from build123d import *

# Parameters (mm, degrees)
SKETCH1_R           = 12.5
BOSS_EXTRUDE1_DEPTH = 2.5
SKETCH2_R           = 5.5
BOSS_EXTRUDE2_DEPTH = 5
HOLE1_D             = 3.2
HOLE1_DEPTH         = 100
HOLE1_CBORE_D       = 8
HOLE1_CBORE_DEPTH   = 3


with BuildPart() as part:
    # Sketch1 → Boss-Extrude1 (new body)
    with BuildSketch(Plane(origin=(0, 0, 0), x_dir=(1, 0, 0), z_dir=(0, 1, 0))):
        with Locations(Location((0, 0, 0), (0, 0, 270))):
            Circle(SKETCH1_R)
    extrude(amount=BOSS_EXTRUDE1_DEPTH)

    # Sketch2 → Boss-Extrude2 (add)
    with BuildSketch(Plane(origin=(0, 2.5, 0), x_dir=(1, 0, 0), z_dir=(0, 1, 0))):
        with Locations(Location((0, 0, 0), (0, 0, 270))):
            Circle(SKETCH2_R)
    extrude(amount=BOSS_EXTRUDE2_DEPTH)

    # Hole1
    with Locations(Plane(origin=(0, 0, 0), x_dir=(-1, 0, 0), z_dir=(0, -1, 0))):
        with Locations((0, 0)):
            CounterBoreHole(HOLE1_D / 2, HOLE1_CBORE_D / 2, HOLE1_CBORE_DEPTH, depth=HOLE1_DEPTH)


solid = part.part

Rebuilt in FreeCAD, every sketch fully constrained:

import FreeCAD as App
import Part
import Sketcher

V = App.Vector

doc = App.newDocument("Part")
params = doc.addObject("Spreadsheet::Sheet", "Params")
for row, (alias, value) in enumerate([
    ("sketch1_diameter", "25 mm"),
    ("pad1_length", "2.5 mm"),
    ("sketch2_diameter", "11 mm"),
    ("pad2_length", "5 mm"),
    ("sketch3_diameter", "3.2 mm"),
    ("hole_diameter", "3.2 mm"),
    ("hole_depth", "100 mm"),
    ("hole_cbore_diameter", "8 mm"),
    ("hole_cbore_depth", "3 mm"),
], start=1):
    params.set(f"A{row}", alias)
    params.set(f"B{row}", "=" + value)
    params.setAlias(f"B{row}", alias)

body = doc.addObject("PartDesign::Body", "Body")

# Sketch on XZ plane
sketch1 = body.newObject("Sketcher::SketchObject", "Sketch")
sketch1.AttachmentSupport = (doc.getObject("XZ_Plane"), [""])
sketch1.MapMode = "FlatFace"
sketch1.addGeometry(Part.Circle(V(0, 0, 0), V(0, 0, 1), 12.5), False)
sketch1.addConstraint(Sketcher.Constraint("Coincident", 0, 3, -1, 1))
sketch1.addConstraint(Sketcher.Constraint("Diameter", 0, 25.0))
sketch1.setExpression("Constraints[1]", "Params.sketch1_diameter")
pad1 = body.newObject("PartDesign::Pad", "Pad")
pad1.Profile = sketch1
pad1.setExpression("Length", "Params.pad1_length")
pad1.Reversed = True

# Sketch on XZ plane
sketch2 = body.newObject("Sketcher::SketchObject", "Sketch001")
sketch2.AttachmentSupport = (doc.getObject("XZ_Plane"), [""])
sketch2.MapMode = "FlatFace"
sketch2.AttachmentOffset = App.Placement(V(0, 0, -2.5), App.Rotation())
sketch2.addGeometry(Part.Circle(V(0, 0, 0), V(0, 0, 1), 5.5), False)
sketch2.addConstraint(Sketcher.Constraint("Coincident", 0, 3, -1, 1))
sketch2.addConstraint(Sketcher.Constraint("Diameter", 0, 11.0))
sketch2.setExpression("Constraints[1]", "Params.sketch2_diameter")
pad2 = body.newObject("PartDesign::Pad", "Pad001")
pad2.Profile = sketch2
pad2.setExpression("Length", "Params.pad2_length")
pad2.Reversed = True

# Sketch on XZ plane
sketch3 = body.newObject("Sketcher::SketchObject", "Sketch002")
sketch3.AttachmentSupport = (doc.getObject("XZ_Plane"), [""])
sketch3.MapMode = "FlatFace"
sketch3.addGeometry(Part.Circle(V(0, 0, 0), V(0, 0, 1), 1.6), False)
sketch3.addConstraint(Sketcher.Constraint("Coincident", 0, 3, -1, 1))
sketch3.addConstraint(Sketcher.Constraint("Diameter", 0, 3.2))
sketch3.setExpression("Constraints[1]", "Params.sketch3_diameter")
doc.recompute()
hole = body.newObject("PartDesign::Hole", "Hole")
hole.Profile = sketch3
hole.ThreadType = "None"
hole.setExpression("Diameter", "Params.hole_diameter")
hole.DepthType = "Dimension"
hole.setExpression("Depth", "Params.hole_depth")
hole.DrillPoint = "Flat"
hole.HoleCutType = "Counterbore"
hole.setExpression("HoleCutDiameter", "Params.hole_cbore_diameter")
hole.setExpression("HoleCutDepth", "Params.hole_cbore_depth")

doc.recompute()
